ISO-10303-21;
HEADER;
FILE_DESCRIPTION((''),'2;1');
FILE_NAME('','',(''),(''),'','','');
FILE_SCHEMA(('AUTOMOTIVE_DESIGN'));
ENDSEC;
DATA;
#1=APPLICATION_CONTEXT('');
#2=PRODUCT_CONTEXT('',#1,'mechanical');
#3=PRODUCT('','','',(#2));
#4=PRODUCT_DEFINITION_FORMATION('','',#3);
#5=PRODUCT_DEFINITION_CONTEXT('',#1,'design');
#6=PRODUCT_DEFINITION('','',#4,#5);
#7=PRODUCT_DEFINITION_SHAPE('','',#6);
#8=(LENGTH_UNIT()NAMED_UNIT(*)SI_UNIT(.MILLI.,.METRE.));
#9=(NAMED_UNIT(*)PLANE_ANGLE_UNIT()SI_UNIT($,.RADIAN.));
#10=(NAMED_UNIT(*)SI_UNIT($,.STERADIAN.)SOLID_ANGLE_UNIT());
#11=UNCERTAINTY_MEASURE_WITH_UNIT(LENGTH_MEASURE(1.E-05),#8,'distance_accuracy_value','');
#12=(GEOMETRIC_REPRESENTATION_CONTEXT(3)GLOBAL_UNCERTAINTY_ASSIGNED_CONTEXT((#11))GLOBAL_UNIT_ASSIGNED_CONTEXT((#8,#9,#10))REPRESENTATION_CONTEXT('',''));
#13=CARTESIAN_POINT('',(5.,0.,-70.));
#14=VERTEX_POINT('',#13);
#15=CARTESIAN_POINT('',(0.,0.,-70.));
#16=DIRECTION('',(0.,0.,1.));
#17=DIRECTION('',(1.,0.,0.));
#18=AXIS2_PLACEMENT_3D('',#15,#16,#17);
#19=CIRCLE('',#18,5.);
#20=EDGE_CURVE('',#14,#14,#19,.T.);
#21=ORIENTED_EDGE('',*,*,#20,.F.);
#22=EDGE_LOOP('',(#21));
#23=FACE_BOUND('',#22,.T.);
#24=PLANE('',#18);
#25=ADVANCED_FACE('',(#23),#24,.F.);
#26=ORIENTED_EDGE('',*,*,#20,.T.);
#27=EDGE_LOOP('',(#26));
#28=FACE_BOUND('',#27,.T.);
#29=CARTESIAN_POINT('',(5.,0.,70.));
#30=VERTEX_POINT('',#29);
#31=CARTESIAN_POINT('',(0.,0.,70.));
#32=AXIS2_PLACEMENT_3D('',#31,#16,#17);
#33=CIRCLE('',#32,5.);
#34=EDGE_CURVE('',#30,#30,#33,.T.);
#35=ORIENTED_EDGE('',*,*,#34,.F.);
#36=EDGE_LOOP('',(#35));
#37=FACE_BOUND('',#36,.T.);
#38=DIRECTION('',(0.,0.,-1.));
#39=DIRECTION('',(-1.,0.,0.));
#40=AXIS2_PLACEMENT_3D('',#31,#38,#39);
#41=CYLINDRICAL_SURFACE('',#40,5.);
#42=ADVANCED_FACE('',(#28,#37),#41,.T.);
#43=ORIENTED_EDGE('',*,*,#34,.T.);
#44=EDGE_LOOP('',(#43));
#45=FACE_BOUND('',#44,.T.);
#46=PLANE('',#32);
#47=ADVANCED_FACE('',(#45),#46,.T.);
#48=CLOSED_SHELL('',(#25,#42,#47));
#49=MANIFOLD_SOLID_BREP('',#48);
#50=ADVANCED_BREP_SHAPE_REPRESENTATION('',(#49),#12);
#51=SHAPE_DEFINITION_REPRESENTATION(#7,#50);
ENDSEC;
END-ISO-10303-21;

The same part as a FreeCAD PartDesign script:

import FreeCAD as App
import Part
import Sketcher
Q = App.Units.Quantity

doc = App.newDocument("Part")
params = doc.addObject("Spreadsheet::Sheet", "Params")
for row, (alias, value) in enumerate([
    ("sketch1_diameter", "10 mm"),
    ("pad1_length", "140 mm"),
], start=1):
    params.set(f"A{row}", alias)
    params.set(f"B{row}", "=" + value)
    params.setAlias(f"B{row}", alias)

body = doc.addObject("PartDesign::Body", "Body")

sketch1 = body.newObject("Sketcher::SketchObject", "Sketch")
sketch1.AttachmentSupport = (doc.getObject("XY_Plane"), [""])
sketch1.MapMode = "FlatFace"
sketch1.addGeometry(Part.Circle(App.Vector(0, 0, 0), App.Vector(0, 0, 1), 5), False)
sketch1.addConstraint([
    Sketcher.Constraint("Coincident", 0, 3, -1, 1),
    Sketcher.Constraint("Diameter", 0, Q("10 mm")),
])
sketch1.setExpression("Constraints[1]", "Params.sketch1_diameter")
pad1 = body.newObject("PartDesign::Pad", "Pad")
pad1.Profile = sketch1
pad1.setExpression("Length", "Params.pad1_length")
pad1.Midplane = True

doc.recompute()
